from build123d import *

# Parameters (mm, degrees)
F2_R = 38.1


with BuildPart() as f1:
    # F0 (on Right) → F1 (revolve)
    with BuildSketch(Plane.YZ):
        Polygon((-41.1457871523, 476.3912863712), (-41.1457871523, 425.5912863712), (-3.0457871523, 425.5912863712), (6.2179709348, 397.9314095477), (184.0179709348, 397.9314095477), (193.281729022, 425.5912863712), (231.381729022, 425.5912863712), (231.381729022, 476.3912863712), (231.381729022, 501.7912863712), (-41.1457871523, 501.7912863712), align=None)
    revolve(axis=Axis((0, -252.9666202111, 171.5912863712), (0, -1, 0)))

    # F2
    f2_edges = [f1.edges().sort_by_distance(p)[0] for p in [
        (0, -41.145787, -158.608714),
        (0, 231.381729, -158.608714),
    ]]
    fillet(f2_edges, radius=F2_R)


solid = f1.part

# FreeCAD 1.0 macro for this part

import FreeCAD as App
import Part
import Sketcher

V = App.Vector
Q = App.Units.Quantity


def edges_at(feature, points):
    """Names of the edges that pass closest to the given points."""
    edges = feature.Shape.Edges
    near = lambda p: min(range(len(edges)), key=lambda i: edges[i].distToShape(Part.Vertex(*p))[0])
    return sorted({f"Edge{near(p) + 1}" for p in points})


def add_polygon(sketch, points):
    """Adds a closed chain of lines whose ends are joined by coincident constraints."""
    first, n = sketch.GeometryCount, len(points)
    for a, b in zip(points, points[1:] + points[:1]):
        sketch.addGeometry(Part.LineSegment(App.Vector(*a, 0), App.Vector(*b, 0)), False)
    for i in range(n):
        sketch.addConstraint(Sketcher.Constraint("Coincident", first + i, 2, first + (i + 1) % n, 1))

doc = App.newDocument("Part")
body = doc.addObject("PartDesign::Body", "Body")

sketch1 = body.newObject("Sketcher::SketchObject", "Sketch")
sketch1.AttachmentSupport = (doc.getObject("YZ_Plane"), [""])
sketch1.MapMode = "FlatFace"
add_polygon(sketch1, [(-41, 426), (-3, 426), (6, 398), (184, 398), (193, 426), (231, 426), (231, 502), (-41, 502)])
sketch1.addGeometry(Part.LineSegment(V(231, 172, 0), V(-41, 172, 0)), True)
sketch1.addConstraint([
    Sketcher.Constraint("Horizontal", 0),
    Sketcher.Constraint("Horizontal", 2),
    Sketcher.Constraint("Horizontal", 4),
    Sketcher.Constraint("Vertical", 5),
    Sketcher.Constraint("Horizontal", 6),
    Sketcher.Constraint("Vertical", 7),
    Sketcher.Constraint("Horizontal", 8),
    Sketcher.Constraint("Horizontal", 0, 2, 3, 2),
    Sketcher.Constraint("Vertical", 5, 2, 8, 1),
    Sketcher.Constraint("Vertical", 7, 2, 8, 2),
    Sketcher.Constraint("Equal", 0, 4),
    Sketcher.Constraint("Equal", 1, 3),
    Sketcher.Constraint("DistanceX", 2, 1, 2, 2, Q("7 in")),
    Sketcher.Constraint("DistanceY", 5, 1, 5, 2, Q("3 in")),
    Sketcher.Constraint("DistanceX", 0, 1, 0, 2, Q("1.5 in")),
    Sketcher.Constraint("DistanceY", 8, 1, 4, 2, Q("10 in")),
    Sketcher.Constraint("Distance", 1, 29.16995),
    Sketcher.Constraint("DistanceX", 6, 2, 6, 1, 272.527516),
    Sketcher.Constraint("DistanceX", -1, 1, 1, 2, 6.217971),
    Sketcher.Constraint("DistanceY", -1, 1, 1, 2, 397.93141),
])
revolution = body.newObject("PartDesign::Revolution", "Revolution")
revolution.Profile = sketch1
revolution.ReferenceAxis = (sketch1, ["Axis0"])
revolution.Angle = 360
doc.recompute()

fillet = body.newObject("PartDesign::Fillet", "Fillet")
fillet.Base = (revolution, edges_at(revolution, [(0, -41.146, -158.609), (0, 231.382, -158.609)]))
fillet.Radius = Q("1.5 in")

doc.recompute()
